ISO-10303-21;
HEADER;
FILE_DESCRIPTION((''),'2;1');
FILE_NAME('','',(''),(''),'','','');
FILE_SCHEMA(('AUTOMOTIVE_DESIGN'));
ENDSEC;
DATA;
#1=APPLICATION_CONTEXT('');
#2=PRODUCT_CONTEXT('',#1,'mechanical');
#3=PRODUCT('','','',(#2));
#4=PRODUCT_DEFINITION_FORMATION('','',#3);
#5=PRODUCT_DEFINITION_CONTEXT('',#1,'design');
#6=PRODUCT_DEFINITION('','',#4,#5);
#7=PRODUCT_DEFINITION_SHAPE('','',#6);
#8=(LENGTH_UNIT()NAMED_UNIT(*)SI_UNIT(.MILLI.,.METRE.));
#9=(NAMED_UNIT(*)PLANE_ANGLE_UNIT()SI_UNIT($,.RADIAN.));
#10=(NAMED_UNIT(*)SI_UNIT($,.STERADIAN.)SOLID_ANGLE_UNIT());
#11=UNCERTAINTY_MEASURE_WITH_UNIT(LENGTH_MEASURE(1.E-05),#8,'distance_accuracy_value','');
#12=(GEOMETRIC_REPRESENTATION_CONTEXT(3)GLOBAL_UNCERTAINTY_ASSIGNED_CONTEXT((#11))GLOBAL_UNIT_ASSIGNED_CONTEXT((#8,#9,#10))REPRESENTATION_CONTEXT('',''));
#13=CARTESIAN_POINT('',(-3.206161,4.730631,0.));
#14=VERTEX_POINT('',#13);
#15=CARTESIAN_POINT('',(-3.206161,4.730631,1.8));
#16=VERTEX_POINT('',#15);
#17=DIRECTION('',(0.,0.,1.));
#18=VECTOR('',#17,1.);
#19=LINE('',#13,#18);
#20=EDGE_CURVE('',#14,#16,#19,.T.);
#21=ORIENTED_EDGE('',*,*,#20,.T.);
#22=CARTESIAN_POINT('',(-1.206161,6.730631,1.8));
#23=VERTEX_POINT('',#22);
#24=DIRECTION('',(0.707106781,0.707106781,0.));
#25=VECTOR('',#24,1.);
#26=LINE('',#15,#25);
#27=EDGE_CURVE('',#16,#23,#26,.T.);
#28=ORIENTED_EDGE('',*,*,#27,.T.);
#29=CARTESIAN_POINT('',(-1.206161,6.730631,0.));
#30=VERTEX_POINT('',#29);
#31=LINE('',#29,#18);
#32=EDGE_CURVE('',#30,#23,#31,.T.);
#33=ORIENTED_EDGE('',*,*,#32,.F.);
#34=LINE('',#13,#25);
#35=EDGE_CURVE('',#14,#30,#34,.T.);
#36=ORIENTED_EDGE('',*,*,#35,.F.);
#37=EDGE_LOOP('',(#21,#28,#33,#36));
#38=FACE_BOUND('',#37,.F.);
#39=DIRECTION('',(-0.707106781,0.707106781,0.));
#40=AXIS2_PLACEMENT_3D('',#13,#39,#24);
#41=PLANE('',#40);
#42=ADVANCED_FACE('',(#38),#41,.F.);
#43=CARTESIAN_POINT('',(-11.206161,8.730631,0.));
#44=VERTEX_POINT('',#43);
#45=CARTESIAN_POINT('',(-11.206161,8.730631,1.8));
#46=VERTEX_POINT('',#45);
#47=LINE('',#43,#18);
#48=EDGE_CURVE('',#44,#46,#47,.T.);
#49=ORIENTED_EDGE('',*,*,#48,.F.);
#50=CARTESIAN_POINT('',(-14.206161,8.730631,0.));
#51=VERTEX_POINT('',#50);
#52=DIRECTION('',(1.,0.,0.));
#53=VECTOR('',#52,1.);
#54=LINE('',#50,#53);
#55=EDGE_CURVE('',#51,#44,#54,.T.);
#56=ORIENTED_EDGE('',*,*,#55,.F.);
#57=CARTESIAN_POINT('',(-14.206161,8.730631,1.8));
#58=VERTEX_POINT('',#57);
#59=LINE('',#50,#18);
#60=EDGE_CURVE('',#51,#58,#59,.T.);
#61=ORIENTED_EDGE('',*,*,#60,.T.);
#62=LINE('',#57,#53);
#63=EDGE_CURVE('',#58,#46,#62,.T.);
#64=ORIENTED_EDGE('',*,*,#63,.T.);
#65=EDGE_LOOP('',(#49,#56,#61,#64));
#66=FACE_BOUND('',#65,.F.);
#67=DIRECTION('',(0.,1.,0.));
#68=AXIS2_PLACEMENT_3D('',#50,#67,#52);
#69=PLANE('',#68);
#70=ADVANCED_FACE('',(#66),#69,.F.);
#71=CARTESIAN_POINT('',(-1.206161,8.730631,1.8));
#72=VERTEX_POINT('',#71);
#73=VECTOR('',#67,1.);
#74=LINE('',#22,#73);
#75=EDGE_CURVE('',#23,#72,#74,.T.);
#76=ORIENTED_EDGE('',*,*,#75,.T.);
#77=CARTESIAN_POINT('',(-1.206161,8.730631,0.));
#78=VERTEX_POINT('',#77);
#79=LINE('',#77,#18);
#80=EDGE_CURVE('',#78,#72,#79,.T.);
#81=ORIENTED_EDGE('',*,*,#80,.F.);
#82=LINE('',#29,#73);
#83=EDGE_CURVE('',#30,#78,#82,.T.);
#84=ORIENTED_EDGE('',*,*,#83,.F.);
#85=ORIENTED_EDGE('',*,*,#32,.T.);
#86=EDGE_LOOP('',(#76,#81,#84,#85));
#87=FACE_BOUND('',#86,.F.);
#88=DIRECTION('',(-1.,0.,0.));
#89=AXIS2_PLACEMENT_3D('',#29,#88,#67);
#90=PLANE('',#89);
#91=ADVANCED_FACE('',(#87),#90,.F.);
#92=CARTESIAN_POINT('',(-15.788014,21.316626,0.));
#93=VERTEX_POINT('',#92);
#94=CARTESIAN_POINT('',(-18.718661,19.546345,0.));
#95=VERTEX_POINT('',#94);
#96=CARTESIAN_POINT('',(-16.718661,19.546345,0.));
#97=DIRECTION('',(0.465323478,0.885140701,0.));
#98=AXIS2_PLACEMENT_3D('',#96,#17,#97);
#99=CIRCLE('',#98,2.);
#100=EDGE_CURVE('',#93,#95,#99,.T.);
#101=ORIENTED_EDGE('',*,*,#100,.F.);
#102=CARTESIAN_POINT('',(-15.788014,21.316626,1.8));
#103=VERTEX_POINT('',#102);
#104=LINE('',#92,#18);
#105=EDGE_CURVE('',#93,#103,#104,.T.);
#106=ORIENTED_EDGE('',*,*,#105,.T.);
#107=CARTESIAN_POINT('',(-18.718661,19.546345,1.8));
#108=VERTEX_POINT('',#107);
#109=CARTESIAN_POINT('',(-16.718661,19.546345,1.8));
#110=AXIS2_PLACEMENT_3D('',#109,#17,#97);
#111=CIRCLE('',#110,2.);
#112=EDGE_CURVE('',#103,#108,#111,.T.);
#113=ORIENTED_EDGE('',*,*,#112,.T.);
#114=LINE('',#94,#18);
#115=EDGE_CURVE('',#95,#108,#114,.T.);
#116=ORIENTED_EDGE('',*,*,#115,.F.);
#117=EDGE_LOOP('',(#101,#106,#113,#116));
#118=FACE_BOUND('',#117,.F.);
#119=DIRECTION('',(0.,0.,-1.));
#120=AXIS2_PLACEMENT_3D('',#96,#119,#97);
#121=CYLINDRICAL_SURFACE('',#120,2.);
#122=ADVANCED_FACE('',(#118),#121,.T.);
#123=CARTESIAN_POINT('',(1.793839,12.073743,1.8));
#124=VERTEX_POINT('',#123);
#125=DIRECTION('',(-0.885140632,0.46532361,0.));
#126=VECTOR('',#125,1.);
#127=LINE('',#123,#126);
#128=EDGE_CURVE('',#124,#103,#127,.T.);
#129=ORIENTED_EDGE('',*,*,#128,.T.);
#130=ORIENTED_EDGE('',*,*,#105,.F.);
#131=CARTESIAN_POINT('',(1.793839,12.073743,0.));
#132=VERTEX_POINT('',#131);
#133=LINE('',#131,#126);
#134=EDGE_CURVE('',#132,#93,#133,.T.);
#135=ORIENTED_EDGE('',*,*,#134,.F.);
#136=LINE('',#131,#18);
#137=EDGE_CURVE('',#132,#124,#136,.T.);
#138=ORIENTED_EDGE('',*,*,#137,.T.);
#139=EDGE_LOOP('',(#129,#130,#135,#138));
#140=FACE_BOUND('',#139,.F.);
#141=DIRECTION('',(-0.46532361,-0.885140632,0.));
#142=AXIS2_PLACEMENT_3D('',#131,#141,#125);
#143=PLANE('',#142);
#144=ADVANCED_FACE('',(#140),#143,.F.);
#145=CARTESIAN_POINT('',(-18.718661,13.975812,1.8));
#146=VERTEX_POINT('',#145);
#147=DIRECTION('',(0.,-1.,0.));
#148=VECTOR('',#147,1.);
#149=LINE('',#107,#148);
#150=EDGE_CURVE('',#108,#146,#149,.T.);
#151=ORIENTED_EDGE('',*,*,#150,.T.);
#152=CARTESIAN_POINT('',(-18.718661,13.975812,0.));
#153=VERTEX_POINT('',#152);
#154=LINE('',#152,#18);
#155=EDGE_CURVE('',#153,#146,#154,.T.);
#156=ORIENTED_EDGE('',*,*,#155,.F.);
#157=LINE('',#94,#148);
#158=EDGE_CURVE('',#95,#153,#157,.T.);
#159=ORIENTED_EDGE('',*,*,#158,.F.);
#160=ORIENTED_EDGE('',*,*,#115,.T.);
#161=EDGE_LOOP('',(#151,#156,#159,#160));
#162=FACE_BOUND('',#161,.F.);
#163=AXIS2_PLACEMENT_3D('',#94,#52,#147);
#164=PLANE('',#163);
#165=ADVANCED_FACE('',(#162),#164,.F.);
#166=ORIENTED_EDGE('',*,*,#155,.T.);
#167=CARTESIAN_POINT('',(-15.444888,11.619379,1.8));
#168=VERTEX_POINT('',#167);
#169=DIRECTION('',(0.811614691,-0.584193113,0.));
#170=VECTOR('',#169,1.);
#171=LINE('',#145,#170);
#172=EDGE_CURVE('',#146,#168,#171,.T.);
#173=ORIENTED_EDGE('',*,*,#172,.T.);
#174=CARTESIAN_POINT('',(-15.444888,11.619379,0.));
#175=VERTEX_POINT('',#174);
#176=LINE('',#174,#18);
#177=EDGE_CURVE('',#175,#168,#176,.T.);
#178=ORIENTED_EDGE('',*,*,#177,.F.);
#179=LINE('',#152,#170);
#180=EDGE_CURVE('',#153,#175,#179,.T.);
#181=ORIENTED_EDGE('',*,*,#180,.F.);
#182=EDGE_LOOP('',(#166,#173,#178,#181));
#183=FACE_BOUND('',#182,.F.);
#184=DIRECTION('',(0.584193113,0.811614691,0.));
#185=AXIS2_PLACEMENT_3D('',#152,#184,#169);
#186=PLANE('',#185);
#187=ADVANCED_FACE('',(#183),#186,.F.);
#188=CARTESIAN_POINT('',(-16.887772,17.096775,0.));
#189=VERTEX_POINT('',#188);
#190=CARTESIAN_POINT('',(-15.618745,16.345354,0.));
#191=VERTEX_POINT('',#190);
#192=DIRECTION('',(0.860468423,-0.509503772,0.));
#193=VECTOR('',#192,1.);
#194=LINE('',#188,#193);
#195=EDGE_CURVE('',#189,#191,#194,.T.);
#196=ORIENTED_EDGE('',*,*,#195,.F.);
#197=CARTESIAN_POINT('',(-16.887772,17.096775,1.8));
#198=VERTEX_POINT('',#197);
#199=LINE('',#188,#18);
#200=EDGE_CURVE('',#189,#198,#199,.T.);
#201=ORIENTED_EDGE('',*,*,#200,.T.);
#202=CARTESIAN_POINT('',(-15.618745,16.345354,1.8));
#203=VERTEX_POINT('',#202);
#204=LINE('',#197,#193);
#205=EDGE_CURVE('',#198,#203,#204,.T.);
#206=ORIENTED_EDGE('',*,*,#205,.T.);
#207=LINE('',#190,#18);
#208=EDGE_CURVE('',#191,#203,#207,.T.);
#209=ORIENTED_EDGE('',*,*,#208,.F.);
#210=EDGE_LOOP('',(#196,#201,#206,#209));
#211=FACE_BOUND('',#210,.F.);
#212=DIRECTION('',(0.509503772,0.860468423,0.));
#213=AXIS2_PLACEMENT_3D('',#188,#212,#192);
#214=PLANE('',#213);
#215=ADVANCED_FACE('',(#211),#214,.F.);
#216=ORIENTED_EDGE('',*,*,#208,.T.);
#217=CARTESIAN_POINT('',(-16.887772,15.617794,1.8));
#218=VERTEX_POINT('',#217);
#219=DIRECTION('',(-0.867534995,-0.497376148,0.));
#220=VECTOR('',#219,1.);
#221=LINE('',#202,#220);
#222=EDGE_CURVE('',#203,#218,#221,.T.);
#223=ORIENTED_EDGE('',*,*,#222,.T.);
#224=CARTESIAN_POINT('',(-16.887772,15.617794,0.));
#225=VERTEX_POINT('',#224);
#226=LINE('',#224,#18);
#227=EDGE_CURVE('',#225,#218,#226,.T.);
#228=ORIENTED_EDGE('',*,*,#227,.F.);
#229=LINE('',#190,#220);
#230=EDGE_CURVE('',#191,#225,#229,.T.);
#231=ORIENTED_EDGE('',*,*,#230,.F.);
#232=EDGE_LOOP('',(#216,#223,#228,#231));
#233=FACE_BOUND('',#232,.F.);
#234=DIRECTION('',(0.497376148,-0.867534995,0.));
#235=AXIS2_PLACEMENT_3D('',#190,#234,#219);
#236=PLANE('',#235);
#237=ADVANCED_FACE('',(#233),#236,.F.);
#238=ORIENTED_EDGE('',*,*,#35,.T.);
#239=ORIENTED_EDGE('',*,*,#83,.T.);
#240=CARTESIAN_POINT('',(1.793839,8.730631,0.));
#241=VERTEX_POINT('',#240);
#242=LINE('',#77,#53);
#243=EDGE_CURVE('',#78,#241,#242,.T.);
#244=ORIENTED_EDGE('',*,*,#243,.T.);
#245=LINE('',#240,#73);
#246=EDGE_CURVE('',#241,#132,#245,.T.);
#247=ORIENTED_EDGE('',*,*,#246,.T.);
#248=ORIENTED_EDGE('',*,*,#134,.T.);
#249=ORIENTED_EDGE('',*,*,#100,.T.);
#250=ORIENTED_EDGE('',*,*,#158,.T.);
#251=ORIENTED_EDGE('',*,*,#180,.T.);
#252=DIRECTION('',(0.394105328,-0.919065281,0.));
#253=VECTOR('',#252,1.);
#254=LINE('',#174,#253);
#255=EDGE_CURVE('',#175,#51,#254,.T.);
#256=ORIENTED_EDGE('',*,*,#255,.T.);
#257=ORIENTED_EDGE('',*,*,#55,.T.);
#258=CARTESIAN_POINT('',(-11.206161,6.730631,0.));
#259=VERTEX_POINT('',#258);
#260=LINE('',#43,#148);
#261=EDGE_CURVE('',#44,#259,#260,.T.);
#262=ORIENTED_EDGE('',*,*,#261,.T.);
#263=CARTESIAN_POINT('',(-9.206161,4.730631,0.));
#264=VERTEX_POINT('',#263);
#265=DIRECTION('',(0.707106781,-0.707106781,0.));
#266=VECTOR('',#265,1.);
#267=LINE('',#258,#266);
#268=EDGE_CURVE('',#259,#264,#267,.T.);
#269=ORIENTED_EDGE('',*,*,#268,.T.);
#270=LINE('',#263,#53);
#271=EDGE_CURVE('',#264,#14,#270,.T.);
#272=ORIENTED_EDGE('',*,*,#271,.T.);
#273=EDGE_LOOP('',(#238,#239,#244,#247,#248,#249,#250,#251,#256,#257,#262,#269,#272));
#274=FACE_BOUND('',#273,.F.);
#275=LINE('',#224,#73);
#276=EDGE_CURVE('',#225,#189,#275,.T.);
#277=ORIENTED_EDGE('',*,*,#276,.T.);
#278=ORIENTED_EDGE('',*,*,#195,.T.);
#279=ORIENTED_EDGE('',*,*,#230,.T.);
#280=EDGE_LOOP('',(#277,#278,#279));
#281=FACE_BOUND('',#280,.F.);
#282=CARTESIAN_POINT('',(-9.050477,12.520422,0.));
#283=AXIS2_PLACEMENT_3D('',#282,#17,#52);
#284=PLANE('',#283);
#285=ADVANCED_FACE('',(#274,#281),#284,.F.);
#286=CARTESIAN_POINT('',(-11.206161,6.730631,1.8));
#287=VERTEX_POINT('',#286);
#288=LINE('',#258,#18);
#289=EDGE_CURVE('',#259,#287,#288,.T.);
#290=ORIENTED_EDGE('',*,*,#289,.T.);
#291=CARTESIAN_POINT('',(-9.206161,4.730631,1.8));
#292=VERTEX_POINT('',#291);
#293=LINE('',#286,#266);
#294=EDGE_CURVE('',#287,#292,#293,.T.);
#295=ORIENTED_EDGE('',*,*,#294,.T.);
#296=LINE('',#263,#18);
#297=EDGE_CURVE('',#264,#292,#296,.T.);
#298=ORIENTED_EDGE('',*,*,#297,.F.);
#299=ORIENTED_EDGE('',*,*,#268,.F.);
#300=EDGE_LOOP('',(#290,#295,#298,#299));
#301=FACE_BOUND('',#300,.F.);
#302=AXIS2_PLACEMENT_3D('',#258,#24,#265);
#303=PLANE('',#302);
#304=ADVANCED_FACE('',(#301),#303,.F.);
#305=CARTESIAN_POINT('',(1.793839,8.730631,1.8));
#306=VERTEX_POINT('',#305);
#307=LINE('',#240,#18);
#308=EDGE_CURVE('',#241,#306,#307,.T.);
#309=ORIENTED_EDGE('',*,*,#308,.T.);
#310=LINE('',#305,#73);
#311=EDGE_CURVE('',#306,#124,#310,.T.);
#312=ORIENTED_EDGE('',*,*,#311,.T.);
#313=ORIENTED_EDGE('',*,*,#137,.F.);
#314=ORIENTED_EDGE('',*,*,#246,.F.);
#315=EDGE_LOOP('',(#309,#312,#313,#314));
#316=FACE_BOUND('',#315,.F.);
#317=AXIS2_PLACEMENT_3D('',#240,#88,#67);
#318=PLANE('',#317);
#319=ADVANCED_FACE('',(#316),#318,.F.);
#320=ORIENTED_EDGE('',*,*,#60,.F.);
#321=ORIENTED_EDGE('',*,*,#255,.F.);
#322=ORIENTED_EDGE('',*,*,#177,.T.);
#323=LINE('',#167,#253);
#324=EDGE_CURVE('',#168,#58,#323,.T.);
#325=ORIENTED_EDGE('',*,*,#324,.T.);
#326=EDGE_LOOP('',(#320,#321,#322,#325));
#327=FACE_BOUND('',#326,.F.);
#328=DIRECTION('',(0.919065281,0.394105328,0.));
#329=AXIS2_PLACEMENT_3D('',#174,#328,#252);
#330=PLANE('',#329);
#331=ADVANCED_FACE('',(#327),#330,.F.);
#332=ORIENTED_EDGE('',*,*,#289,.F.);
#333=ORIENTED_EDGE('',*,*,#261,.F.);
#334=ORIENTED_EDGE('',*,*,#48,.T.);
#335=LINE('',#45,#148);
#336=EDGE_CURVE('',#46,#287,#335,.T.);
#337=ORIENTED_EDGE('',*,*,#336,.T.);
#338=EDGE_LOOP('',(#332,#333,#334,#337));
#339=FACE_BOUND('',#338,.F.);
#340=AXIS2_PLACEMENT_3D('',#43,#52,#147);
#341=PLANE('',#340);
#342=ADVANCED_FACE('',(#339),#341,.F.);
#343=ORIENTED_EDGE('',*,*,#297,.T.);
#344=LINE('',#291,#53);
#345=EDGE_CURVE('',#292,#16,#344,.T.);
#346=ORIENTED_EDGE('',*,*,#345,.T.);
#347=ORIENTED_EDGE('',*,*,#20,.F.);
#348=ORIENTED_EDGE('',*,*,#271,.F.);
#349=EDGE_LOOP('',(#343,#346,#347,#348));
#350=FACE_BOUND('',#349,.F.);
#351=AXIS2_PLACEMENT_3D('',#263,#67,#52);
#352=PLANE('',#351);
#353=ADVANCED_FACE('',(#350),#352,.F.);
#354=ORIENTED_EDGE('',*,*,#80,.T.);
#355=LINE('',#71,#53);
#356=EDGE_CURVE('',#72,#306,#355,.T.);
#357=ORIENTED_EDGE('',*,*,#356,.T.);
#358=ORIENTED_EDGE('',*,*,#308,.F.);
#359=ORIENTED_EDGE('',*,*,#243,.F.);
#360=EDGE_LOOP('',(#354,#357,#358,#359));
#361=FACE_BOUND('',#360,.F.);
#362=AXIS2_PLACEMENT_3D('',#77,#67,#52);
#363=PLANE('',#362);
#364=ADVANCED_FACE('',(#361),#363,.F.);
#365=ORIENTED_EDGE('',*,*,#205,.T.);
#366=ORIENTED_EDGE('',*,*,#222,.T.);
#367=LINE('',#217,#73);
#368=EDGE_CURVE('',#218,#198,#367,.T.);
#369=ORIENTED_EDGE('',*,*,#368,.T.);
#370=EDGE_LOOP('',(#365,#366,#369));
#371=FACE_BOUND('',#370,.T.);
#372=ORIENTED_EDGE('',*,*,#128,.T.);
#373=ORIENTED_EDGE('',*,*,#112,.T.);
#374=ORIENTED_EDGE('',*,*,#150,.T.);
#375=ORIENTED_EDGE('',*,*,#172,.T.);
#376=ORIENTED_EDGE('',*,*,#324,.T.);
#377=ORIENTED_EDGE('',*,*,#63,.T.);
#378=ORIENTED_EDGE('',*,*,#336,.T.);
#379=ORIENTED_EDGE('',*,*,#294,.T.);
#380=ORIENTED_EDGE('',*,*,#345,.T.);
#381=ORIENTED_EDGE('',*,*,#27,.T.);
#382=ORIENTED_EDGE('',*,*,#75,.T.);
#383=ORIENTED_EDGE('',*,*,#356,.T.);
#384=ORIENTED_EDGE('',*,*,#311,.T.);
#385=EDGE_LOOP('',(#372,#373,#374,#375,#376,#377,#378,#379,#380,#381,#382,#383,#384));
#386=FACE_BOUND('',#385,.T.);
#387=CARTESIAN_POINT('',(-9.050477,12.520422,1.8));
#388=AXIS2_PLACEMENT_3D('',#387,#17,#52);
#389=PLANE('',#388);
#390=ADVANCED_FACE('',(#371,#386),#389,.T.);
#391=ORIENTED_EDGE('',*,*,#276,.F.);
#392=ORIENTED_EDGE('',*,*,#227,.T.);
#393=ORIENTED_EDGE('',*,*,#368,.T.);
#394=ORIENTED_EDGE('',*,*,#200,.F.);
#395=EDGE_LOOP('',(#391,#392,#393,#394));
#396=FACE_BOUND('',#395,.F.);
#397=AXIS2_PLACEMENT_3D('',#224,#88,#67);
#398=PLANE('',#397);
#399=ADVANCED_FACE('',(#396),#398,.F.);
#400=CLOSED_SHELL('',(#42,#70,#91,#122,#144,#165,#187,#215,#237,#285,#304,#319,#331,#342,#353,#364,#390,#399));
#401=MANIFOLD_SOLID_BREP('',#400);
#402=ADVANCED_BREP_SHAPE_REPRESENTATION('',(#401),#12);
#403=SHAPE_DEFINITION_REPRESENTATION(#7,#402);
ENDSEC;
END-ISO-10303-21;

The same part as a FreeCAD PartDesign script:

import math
import FreeCAD as App
import Part
import Sketcher

V = App.Vector
Q = App.Units.Quantity


def add_polygon(sketch, points):
    """Adds a closed chain of lines whose ends are joined by coincident constraints."""
    first, n = sketch.GeometryCount, len(points)
    for a, b in zip(points, points[1:] + points[:1]):
        sketch.addGeometry(Part.LineSegment(App.Vector(*a, 0), App.Vector(*b, 0)), False)
    for i in range(n):
        sketch.addConstraint(Sketcher.Constraint("Coincident", first + i, 2, first + (i + 1) % n, 1))

doc = App.newDocument("Part")
body = doc.addObject("PartDesign::Body", "Body")

sketch1 = body.newObject("Sketcher::SketchObject", "Sketch")
sketch1.AttachmentSupport = (doc.getObject("XY_Plane"), [""])
sketch1.MapMode = "FlatFace"
sketch1.addGeometry(Part.LineSegment(V(-15.4, 11.6, 0), V(-14.2, 8.7, 0)), False)
sketch1.addGeometry(Part.LineSegment(V(-14.2, 8.7, 0), V(-11.2, 8.7, 0)), False)
sketch1.addGeometry(Part.LineSegment(V(-11.2, 8.7, 0), V(-11.2, 6.7, 0)), False)
sketch1.addGeometry(Part.LineSegment(V(-11.2, 6.7, 0), V(-9.2, 4.7, 0)), False)
sketch1.addGeometry(Part.LineSegment(V(-9.2, 4.7, 0), V(-3.2, 4.7, 0)), False)
sketch1.addGeometry(Part.LineSegment(V(-3.2, 4.7, 0), V(-1.2, 6.7, 0)), False)
sketch1.addGeometry(Part.LineSegment(V(-1.2, 6.7, 0), V(-1.2, 8.7, 0)), False)
sketch1.addGeometry(Part.LineSegment(V(-1.2, 8.7, 0), V(1.8, 8.7, 0)), False)
sketch1.addGeometry(Part.LineSegment(V(1.8, 8.7, 0), V(1.8, 12.1, 0)), False)
sketch1.addGeometry(Part.LineSegment(V(1.8, 12.1, 0), V(-15.8, 21.3, 0)), False)
sketch1.addGeometry(Part.ArcOfCircle(Part.Circle(V(-16.7, 19.5, 0), V(0, 0, 1), 2), math.radians(62), math.radians(180)), False)
sketch1.addGeometry(Part.LineSegment(V(-18.7, 19.5, 0), V(-18.7, 14, 0)), False)
sketch1.addGeometry(Part.LineSegment(V(-18.7, 14, 0), V(-15.4, 11.6, 0)), False)
add_polygon(sketch1, [(-15.6, 16.3), (-16.9, 15.6), (-16.9, 17.1)])
sketch1.addConstraint(Sketcher.Constraint("Coincident", 0, 2, 1, 1))
sketch1.addConstraint(Sketcher.Constraint("Coincident", 1, 2, 2, 1))
sketch1.addConstraint(Sketcher.Constraint("Coincident", 2, 2, 3, 1))
sketch1.addConstraint(Sketcher.Constraint("Coincident", 3, 2, 4, 1))
sketch1.addConstraint(Sketcher.Constraint("Coincident", 4, 2, 5, 1))
sketch1.addConstraint(Sketcher.Constraint("Coincident", 5, 2, 6, 1))
sketch1.addConstraint(Sketcher.Constraint("Coincident", 6, 2, 7, 1))
sketch1.addConstraint(Sketcher.Constraint("Coincident", 7, 2, 8, 1))
sketch1.addConstraint(Sketcher.Constraint("Coincident", 8, 2, 9, 1))
sketch1.addConstraint(Sketcher.Constraint("Tangent", 9, 2, 10, 1))
sketch1.addConstraint(Sketcher.Constraint("Tangent", 10, 2, 11, 1))
sketch1.addConstraint(Sketcher.Constraint("Coincident", 11, 2, 12, 1))
sketch1.addConstraint(Sketcher.Constraint("Coincident", 12, 2, 0, 1))
sketch1.addConstraint(Sketcher.Constraint("Horizontal", 1))
sketch1.addConstraint(Sketcher.Constraint("Vertical", 2))
sketch1.addConstraint(Sketcher.Constraint("Horizontal", 4))
sketch1.addConstraint(Sketcher.Constraint("Vertical", 6))
sketch1.addConstraint(Sketcher.Constraint("Horizontal", 7))
sketch1.addConstraint(Sketcher.Constraint("Vertical", 8))
sketch1.addConstraint(Sketcher.Constraint("Vertical", 11))
sketch1.addConstraint(Sketcher.Constraint("Vertical", 14))
sketch1.addConstraint(Sketcher.Constraint("Perpendicular", 3, 5))
sketch1.addConstraint(Sketcher.Constraint("Horizontal", 2, 2, 5, 2))
sketch1.addConstraint(Sketcher.Constraint("Horizontal", 1, 2, 6, 2))
sketch1.addConstraint(Sketcher.Constraint("Equal", 1, 7))
sketch1.addConstraint(Sketcher.Constraint("Equal", 3, 5))
sketch1.addConstraint(Sketcher.Constraint("Radius", 10, Q("2 mm")))
sketch1.addConstraint(Sketcher.Constraint("DistanceX", 1, 1, 1, 2, Q("3 mm")))
sketch1.addConstraint(Sketcher.Constraint("DistanceX", 4, 1, 4, 2, Q("6 mm")))
sketch1.addConstraint(Sketcher.Constraint("DistanceY", 2, 2, 2, 1, Q("2 mm")))
sketch1.addConstraint(Sketcher.Constraint("DistanceX", 2, 2, 3, 2, Q("2 mm")))
sketch1.addConstraint(Sketcher.Constraint("DistanceY", 8, 1, 8, 2, Q("3.343112 mm")))
sketch1.addConstraint(Sketcher.Constraint("DistanceY", 14, 1, 14, 2, Q("1.478981 mm")))
sketch1.addConstraint(Sketcher.Constraint("DistanceX", 10, 3, 0, 2, Q("2.5125 mm")))
sketch1.addConstraint(Sketcher.Constraint("Distance", 15, Q("1.474809 mm")))
sketch1.addConstraint(Sketcher.Constraint("DistanceY", 11, 2, 11, 1, Q("5.570533 mm")))
sketch1.addConstraint(Sketcher.Constraint("DistanceX", 10, 3, -1, 1, Q("16.718661 mm")))
sketch1.addConstraint(Sketcher.Constraint("DistanceY", -1, 1, 0, 2, Q("8.730631 mm")))
sketch1.addConstraint(Sketcher.Constraint("DistanceX", 12, 2, -1, 1, Q("15.444888 mm")))
sketch1.addConstraint(Sketcher.Constraint("DistanceY", -1, 1, 12, 2, Q("11.619379 mm")))
sketch1.addConstraint(Sketcher.Constraint("DistanceX", 13, 2, -1, 1, Q("16.887772 mm")))
sketch1.addConstraint(Sketcher.Constraint("DistanceY", 10, 3, 9, 2, Q("1.770281 mm")))
sketch1.addConstraint(Sketcher.Constraint("DistanceY", 13, 2, 10, 3, Q("3.928551 mm")))
sketch1.addConstraint(Sketcher.Constraint("DistanceY", 13, 2, 15, 2, Q("0.72756 mm")))
pad1 = body.newObject("PartDesign::Pad", "Pad")
pad1.Profile = sketch1
pad1.Length = 1.8

doc.recompute()
